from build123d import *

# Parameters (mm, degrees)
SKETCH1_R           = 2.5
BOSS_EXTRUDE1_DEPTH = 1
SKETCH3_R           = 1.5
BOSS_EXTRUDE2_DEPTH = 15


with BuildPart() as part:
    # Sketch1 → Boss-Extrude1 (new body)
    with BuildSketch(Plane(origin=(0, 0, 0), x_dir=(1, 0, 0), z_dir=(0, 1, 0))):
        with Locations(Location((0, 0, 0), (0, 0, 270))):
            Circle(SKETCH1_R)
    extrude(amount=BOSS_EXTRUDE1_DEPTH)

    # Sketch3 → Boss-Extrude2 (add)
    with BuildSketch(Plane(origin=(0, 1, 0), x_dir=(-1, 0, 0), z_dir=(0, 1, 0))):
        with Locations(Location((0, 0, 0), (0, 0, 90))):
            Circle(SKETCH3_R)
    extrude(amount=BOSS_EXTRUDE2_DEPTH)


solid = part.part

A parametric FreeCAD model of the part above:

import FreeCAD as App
import Part
import Sketcher

V = App.Vector
Q = App.Units.Quantity

doc = App.newDocument("Part")
body = doc.addObject("PartDesign::Body", "Body")

# Sketch on XZ plane
sketch1 = doc.addObject("Sketcher::SketchObject", "Sketch")
body.addObject(sketch1)
sketch1.AttachmentSupport = (doc.XZ_Plane, [""])
sketch1.MapMode = "FlatFace"
sketch1.addGeometry(Part.Circle(V(0, 0, 0), V(0, 0, 1), 2.5), False)
sketch1.addConstraint([
    Sketcher.Constraint("Coincident", 0, 3, -1, 1),
    Sketcher.Constraint("Diameter", 0, Q("5 mm")),
])
pad1 = doc.addObject("PartDesign::Pad", "Pad")
body.addObject(pad1)
pad1.Profile = sketch1
pad1.Length = 1
pad1.Reversed = True

# Sketch on XZ plane
sketch2 = doc.addObject("Sketcher::SketchObject", "Sketch001")
body.addObject(sketch2)
sketch2.AttachmentSupport = (doc.XZ_Plane, [""])
sketch2.MapMode = "FlatFace"
sketch2.AttachmentOffset = App.Placement(V(0, 0, -1), App.Rotation())
sketch2.addGeometry(Part.Circle(V(0, 0, 0), V(0, 0, 1), 1.5), False)
sketch2.addConstraint([
    Sketcher.Constraint("Coincident", 0, 3, -1, 1),
    Sketcher.Constraint("Diameter", 0, Q("3 mm")),
])
pad2 = doc.addObject("PartDesign::Pad", "Pad001")
body.addObject(pad2)
pad2.Profile = sketch2
pad2.Length = 15
pad2.Reversed = True

doc.recompute()
